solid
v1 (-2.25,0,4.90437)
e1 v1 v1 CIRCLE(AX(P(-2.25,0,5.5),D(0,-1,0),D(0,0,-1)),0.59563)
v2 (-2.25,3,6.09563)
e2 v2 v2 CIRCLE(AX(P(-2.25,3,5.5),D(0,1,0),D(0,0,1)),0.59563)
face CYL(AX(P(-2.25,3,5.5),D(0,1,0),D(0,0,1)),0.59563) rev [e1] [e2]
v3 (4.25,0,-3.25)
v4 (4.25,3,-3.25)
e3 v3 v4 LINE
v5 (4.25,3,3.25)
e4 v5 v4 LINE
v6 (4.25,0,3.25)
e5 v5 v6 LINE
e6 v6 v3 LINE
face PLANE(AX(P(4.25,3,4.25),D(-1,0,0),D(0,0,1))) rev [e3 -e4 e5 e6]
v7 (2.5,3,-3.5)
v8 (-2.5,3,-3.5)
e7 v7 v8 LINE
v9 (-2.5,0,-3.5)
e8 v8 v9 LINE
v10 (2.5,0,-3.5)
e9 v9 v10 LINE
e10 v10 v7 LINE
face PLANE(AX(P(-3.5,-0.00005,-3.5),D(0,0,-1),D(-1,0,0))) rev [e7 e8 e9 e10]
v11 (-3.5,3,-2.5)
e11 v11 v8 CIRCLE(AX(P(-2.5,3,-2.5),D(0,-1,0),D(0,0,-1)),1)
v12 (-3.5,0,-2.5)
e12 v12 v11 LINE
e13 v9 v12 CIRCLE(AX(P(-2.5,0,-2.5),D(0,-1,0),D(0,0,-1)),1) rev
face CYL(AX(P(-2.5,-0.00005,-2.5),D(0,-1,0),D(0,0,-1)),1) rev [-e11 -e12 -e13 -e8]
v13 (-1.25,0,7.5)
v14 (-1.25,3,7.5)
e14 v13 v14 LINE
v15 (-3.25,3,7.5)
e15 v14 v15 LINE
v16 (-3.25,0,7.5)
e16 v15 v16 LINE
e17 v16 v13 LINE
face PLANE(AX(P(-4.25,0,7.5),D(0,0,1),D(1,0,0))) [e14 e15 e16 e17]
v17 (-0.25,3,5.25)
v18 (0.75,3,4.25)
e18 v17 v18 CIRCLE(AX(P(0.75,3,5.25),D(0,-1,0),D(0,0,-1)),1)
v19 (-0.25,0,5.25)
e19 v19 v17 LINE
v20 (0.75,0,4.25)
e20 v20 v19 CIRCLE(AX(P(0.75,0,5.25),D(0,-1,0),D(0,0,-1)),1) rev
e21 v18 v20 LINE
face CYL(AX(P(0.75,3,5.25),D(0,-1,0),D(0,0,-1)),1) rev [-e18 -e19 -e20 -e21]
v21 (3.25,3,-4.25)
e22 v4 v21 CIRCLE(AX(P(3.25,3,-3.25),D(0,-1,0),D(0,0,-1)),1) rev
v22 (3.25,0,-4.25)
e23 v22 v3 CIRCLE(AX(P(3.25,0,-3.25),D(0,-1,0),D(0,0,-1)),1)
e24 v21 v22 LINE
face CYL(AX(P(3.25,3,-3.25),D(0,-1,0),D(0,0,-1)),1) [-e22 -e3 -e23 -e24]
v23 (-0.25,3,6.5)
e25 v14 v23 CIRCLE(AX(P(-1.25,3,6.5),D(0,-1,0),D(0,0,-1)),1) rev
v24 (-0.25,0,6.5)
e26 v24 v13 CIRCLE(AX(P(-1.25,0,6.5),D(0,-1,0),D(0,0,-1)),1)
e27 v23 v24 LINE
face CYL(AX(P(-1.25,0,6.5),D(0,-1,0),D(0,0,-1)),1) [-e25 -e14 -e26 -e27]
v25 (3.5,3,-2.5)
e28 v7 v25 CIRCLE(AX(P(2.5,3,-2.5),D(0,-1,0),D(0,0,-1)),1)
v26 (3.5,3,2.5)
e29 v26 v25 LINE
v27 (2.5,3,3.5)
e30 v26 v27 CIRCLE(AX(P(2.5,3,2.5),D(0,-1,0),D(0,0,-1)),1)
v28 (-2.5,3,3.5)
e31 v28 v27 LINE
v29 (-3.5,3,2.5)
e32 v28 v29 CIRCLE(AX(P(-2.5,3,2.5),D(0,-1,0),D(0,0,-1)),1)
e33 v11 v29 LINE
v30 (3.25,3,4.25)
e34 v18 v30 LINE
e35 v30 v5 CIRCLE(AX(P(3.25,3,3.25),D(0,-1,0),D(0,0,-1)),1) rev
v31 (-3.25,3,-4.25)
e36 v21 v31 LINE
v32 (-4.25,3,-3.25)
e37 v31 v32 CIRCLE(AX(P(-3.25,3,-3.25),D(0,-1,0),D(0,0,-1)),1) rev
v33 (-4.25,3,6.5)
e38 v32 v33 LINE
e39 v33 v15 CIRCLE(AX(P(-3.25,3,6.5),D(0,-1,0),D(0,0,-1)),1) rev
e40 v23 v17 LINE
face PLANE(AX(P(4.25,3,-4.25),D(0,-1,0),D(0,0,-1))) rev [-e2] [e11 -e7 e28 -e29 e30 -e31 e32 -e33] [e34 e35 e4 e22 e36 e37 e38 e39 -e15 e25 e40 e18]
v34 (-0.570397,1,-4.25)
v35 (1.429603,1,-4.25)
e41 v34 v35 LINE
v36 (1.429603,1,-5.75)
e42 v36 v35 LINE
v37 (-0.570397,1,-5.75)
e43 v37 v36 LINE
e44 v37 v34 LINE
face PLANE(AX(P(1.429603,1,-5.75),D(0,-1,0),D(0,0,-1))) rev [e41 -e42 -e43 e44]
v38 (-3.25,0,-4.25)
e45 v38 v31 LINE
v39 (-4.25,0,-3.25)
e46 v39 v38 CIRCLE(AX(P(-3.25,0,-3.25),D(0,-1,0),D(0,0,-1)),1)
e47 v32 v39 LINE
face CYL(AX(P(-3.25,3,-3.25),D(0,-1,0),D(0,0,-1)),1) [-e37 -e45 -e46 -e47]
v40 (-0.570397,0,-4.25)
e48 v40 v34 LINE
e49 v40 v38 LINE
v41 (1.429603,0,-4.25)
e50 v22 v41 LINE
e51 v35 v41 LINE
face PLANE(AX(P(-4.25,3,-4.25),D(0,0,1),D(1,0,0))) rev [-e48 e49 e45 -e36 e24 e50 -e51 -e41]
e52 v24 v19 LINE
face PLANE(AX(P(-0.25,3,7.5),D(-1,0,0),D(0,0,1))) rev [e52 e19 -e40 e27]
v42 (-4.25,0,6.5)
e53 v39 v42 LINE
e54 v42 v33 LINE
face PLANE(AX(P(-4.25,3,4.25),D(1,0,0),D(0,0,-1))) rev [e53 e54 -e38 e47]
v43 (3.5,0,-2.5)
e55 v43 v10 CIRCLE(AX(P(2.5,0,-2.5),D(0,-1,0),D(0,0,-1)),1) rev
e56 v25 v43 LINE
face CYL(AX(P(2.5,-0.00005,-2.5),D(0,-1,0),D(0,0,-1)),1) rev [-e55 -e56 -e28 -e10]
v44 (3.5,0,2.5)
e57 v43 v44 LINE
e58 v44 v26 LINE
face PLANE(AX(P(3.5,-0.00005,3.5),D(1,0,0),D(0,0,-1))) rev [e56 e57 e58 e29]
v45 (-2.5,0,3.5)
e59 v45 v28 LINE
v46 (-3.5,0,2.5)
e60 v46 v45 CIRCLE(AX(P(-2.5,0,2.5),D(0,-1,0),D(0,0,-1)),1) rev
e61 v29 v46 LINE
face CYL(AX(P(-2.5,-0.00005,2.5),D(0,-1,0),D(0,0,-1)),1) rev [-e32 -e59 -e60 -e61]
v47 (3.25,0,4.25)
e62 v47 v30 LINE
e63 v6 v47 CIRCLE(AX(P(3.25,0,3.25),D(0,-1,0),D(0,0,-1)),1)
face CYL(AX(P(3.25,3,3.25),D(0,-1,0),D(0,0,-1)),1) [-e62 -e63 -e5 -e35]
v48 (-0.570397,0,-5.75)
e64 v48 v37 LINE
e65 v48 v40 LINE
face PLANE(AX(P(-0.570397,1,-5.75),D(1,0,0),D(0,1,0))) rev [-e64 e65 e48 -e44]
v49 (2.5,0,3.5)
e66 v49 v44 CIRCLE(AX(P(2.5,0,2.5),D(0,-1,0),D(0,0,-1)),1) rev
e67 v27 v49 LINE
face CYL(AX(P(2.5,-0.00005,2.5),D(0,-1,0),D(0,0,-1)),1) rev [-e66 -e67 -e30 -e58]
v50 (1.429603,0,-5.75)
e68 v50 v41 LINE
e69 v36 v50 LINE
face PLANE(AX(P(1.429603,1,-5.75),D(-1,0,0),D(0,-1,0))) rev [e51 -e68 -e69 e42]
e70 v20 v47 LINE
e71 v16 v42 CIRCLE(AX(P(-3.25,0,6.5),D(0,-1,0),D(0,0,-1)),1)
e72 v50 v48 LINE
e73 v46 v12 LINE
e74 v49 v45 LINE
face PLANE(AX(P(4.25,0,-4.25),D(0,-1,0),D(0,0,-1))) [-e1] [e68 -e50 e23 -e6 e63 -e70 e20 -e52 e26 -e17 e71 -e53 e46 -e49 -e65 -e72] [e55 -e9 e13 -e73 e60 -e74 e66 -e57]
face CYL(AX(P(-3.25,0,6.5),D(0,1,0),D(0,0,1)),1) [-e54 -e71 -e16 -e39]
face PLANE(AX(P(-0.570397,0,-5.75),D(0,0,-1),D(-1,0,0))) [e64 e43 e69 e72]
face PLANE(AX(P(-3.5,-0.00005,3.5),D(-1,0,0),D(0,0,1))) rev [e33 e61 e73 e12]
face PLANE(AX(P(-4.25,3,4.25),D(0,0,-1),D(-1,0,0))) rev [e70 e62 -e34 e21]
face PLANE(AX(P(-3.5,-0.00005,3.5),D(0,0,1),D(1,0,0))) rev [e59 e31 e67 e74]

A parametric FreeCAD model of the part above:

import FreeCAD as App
import Part
import Sketcher

V = App.Vector


def edges_at(feature, points):
    """Names of the edges that pass closest to the given points."""
    edges = feature.Shape.Edges
    near = lambda p: min(range(len(edges)), key=lambda i: edges[i].distToShape(Part.Vertex(*p))[0])
    return sorted({f"Edge{near(p) + 1}" for p in points})

doc = App.newDocument("Part")
params = doc.addObject("Spreadsheet::Sheet", "Params")
for row, (alias, value) in enumerate([
    ("sketch1_width", "8.5 mm"),
    ("pad1_length", "3 mm"),
    ("sketch2_width", "4 mm"),
    ("sketch2_height", "3 mm"),
    ("pad2_length", "3.25 mm"),
    ("sketch3_width", "7 mm"),
    ("hole_diameter", "1.19126 mm"),
    ("sketch5_width", "2 mm"),
    ("sketch5_height", "1 mm"),
    ("pad3_length", "1.5 mm"),
    ("fillet_radius", "1 mm"),
], start=1):
    params.set(f"A{row}", alias)
    params.set(f"B{row}", "=" + value)
    params.setAlias(f"B{row}", alias)

body = doc.addObject("PartDesign::Body", "Body")

# Sketch on XZ plane
sketch1 = body.newObject("Sketcher::SketchObject", "Sketch")
sketch1.AttachmentSupport = (doc.getObject("XZ_Plane"), [""])
sketch1.MapMode = "FlatFace"
sketch1.addGeometry(Part.LineSegment(V(-4.25, -4.25, 0), V(-4.25, 4.25, 0)), False)
sketch1.addGeometry(Part.LineSegment(V(-4.25, 4.25, 0), V(4.25, 4.25, 0)), False)
sketch1.addGeometry(Part.LineSegment(V(4.25, 4.25, 0), V(4.25, -4.25, 0)), False)
sketch1.addGeometry(Part.LineSegment(V(4.25, -4.25, 0), V(-4.25, -4.25, 0)), False)
sketch1.addConstraint(Sketcher.Constraint("Coincident", 0, 2, 1, 1))
sketch1.addConstraint(Sketcher.Constraint("Coincident", 1, 2, 2, 1))
sketch1.addConstraint(Sketcher.Constraint("Coincident", 2, 2, 3, 1))
sketch1.addConstraint(Sketcher.Constraint("Coincident", 3, 2, 0, 1))
sketch1.addConstraint(Sketcher.Constraint("Vertical", 0))
sketch1.addConstraint(Sketcher.Constraint("Horizontal", 1))
sketch1.addConstraint(Sketcher.Constraint("Vertical", 2))
sketch1.addConstraint(Sketcher.Constraint("Horizontal", 3))
sketch1.addConstraint(Sketcher.Constraint("Symmetric", 0, 2, 2, 2, -1, 1))
sketch1.addConstraint(Sketcher.Constraint("Equal", 3, 0))
sketch1.addConstraint(Sketcher.Constraint("DistanceX", 1, 1, 1, 2, 8.5))
sketch1.setExpression("Constraints[10]", "Params.sketch1_width")
pad1 = body.newObject("PartDesign::Pad", "Pad")
pad1.Profile = sketch1
pad1.setExpression("Length", "Params.pad1_length")
pad1.Reversed = True

# Sketch on XY plane
sketch2 = body.newObject("Sketcher::SketchObject", "Sketch001")
sketch2.AttachmentSupport = (doc.getObject("XY_Plane"), [""])
sketch2.MapMode = "FlatFace"
sketch2.AttachmentOffset = App.Placement(V(0, 0, 4.25), App.Rotation())
sketch2.addGeometry(Part.LineSegment(V(-4.25, 3, 0), V(-4.25, 0, 0)), False)
sketch2.addGeometry(Part.LineSegment(V(-4.25, 0, 0), V(-0.25, 0, 0)), False)
sketch2.addGeometry(Part.LineSegment(V(-0.25, 0, 0), V(-0.25, 3, 0)), False)
sketch2.addGeometry(Part.LineSegment(V(-0.25, 3, 0), V(-4.25, 3, 0)), False)
sketch2.addConstraint(Sketcher.Constraint("Coincident", 0, 2, 1, 1))
sketch2.addConstraint(Sketcher.Constraint("Coincident", 1, 2, 2, 1))
sketch2.addConstraint(Sketcher.Constraint("Coincident", 2, 2, 3, 1))
sketch2.addConstraint(Sketcher.Constraint("Coincident", 3, 2, 0, 1))
sketch2.addConstraint(Sketcher.Constraint("Vertical", 0))
sketch2.addConstraint(Sketcher.Constraint("Horizontal", 1))
sketch2.addConstraint(Sketcher.Constraint("Vertical", 2))
sketch2.addConstraint(Sketcher.Constraint("Horizontal", 3))
sketch2.addConstraint(Sketcher.Constraint("PointOnObject", 0, 2, -1))
sketch2.addConstraint(Sketcher.Constraint("DistanceX", 1, 1, 1, 2, 4.0))
sketch2.addConstraint(Sketcher.Constraint("DistanceY", 0, 2, 0, 1, 3.0))
sketch2.addConstraint(Sketcher.Constraint("DistanceX", 0, 2, -1, 1, 4.25))
sketch2.setExpression("Constraints[9]", "Params.sketch2_width")
sketch2.setExpression("Constraints[10]", "Params.sketch2_height")
pad2 = body.newObject("PartDesign::Pad", "Pad001")
pad2.Profile = sketch2
pad2.setExpression("Length", "Params.pad2_length")

# Sketch on XZ plane
sketch3 = body.newObject("Sketcher::SketchObject", "Sketch002")
sketch3.AttachmentSupport = (doc.getObject("XZ_Plane"), [""])
sketch3.MapMode = "FlatFace"
sketch3.AttachmentOffset = App.Placement(V(0, 0, -3), App.Rotation())
sketch3.addGeometry(Part.LineSegment(V(-3.5, -3.5, 0), V(-3.5, 3.5, 0)), False)
sketch3.addGeometry(Part.LineSegment(V(-3.5, 3.5, 0), V(3.5, 3.5, 0)), False)
sketch3.addGeometry(Part.LineSegment(V(3.5, 3.5, 0), V(3.5, -3.5, 0)), False)
sketch3.addGeometry(Part.LineSegment(V(3.5, -3.5, 0), V(-3.5, -3.5, 0)), False)
sketch3.addConstraint(Sketcher.Constraint("Coincident", 0, 2, 1, 1))
sketch3.addConstraint(Sketcher.Constraint("Coincident", 1, 2, 2, 1))
sketch3.addConstraint(Sketcher.Constraint("Coincident", 2, 2, 3, 1))
sketch3.addConstraint(Sketcher.Constraint("Coincident", 3, 2, 0, 1))
sketch3.addConstraint(Sketcher.Constraint("Vertical", 0))
sketch3.addConstraint(Sketcher.Constraint("Horizontal", 1))
sketch3.addConstraint(Sketcher.Constraint("Vertical", 2))
sketch3.addConstraint(Sketcher.Constraint("Horizontal", 3))
sketch3.addConstraint(Sketcher.Constraint("Symmetric", 0, 2, 2, 2, -1, 1))
sketch3.addConstraint(Sketcher.Constraint("Equal", 3, 0))
sketch3.addConstraint(Sketcher.Constraint("DistanceX", 1, 1, 1, 2, 7.0))
sketch3.setExpression("Constraints[10]", "Params.sketch3_width")
pocket1 = body.newObject("PartDesign::Pocket", "Pocket")
pocket1.Profile = sketch3
pocket1.Type = "ThroughAll"
pocket1.Reversed = True

# Sketch on XZ plane
sketch4 = body.newObject("Sketcher::SketchObject", "Sketch003")
sketch4.AttachmentSupport = (doc.getObject("XZ_Plane"), [""])
sketch4.MapMode = "FlatFace"
sketch4.AttachmentOffset = App.Placement(V(0, 0, -3), App.Rotation())
sketch4.addGeometry(Part.Circle(V(-2.25, 5.5, 0), V(0, 0, 1), 0.59563), False)
sketch4.addConstraint(Sketcher.Constraint("DistanceY", -1, 1, 0, 3, 5.5))
sketch4.addConstraint(Sketcher.Constraint("Diameter", 0, 1.19126))
sketch4.addConstraint(Sketcher.Constraint("DistanceX", 0, 3, -1, 1, 2.25))
doc.recompute()
hole = body.newObject("PartDesign::Hole", "Hole")
hole.Profile = sketch4
hole.ThreadType = "None"
hole.setExpression("Diameter", "Params.hole_diameter")
hole.DepthType = "ThroughAll"
hole.Reversed = True

# Sketch on XY plane
sketch5 = body.newObject("Sketcher::SketchObject", "Sketch004")
sketch5.AttachmentSupport = (doc.getObject("XY_Plane"), [""])
sketch5.MapMode = "FlatFace"
sketch5.AttachmentOffset = App.Placement(V(0, 0, -4.25), App.Rotation())
sketch5.addGeometry(Part.LineSegment(V(1.429603, 1, 0), V(1.429603, 0, 0)), False)
sketch5.addGeometry(Part.LineSegment(V(1.429603, 0, 0), V(-0.570397, 0, 0)), False)
sketch5.addGeometry(Part.LineSegment(V(-0.570397, 0, 0), V(-0.570397, 1, 0)), False)
sketch5.addGeometry(Part.LineSegment(V(-0.570397, 1, 0), V(1.429603, 1, 0)), False)
sketch5.addConstraint(Sketcher.Constraint("Coincident", 0, 2, 1, 1))
sketch5.addConstraint(Sketcher.Constraint("Coincident", 1, 2, 2, 1))
sketch5.addConstraint(Sketcher.Constraint("Coincident", 2, 2, 3, 1))
sketch5.addConstraint(Sketcher.Constraint("Coincident", 3, 2, 0, 1))
sketch5.addConstraint(Sketcher.Constraint("Vertical", 0))
sketch5.addConstraint(Sketcher.Constraint("Horizontal", 1))
sketch5.addConstraint(Sketcher.Constraint("Vertical", 2))
sketch5.addConstraint(Sketcher.Constraint("Horizontal", 3))
sketch5.addConstraint(Sketcher.Constraint("PointOnObject", 0, 2, -1))
sketch5.addConstraint(Sketcher.Constraint("DistanceX", 1, 2, 1, 1, 2.0))
sketch5.addConstraint(Sketcher.Constraint("DistanceY", 0, 2, 0, 1, 1.0))
sketch5.addConstraint(Sketcher.Constraint("DistanceX", -1, 1, 0, 2, 1.429603))
sketch5.setExpression("Constraints[9]", "Params.sketch5_width")
sketch5.setExpression("Constraints[10]", "Params.sketch5_height")
pad3 = body.newObject("PartDesign::Pad", "Pad002")
pad3.Profile = sketch5
pad3.setExpression("Length", "Params.pad3_length")
pad3.Reversed = True
doc.recompute()

fillet = body.newObject("PartDesign::Fillet", "Fillet")
fillet.Base = (pad3, edges_at(pad3, [
    (3.5, 1.5, -3.5),
    (-3.5, 1.5, -3.5),
    (-3.5, 1.5, 3.5),
    (3.5, 1.5, 3.5),
    (-4.25, 1.5, 7.5),
    (-0.25, 1.5, 7.5),
    (-0.25, 1.5, 4.25),
    (4.25, 1.5, 4.25),
    (4.25, 1.5, -4.25),
    (-4.25, 1.5, -4.25),
]))
fillet.setExpression("Radius", "Params.fillet_radius")

doc.recompute()
